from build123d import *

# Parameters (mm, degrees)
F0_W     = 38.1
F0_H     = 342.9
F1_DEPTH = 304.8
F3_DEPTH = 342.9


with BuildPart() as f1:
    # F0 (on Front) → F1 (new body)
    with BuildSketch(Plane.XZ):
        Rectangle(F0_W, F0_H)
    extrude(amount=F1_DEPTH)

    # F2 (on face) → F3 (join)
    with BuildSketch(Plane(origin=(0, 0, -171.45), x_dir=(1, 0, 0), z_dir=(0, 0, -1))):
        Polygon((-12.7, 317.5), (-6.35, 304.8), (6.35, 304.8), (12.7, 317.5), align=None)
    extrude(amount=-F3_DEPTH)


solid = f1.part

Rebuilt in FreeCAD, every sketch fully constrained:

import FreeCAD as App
import Part
import Sketcher
Q = App.Units.Quantity


def add_polygon(sketch, points):
    """Adds a closed chain of lines whose ends are joined by coincident constraints."""
    first, n = sketch.GeometryCount, len(points)
    for a, b in zip(points, points[1:] + points[:1]):
        sketch.addGeometry(Part.LineSegment(App.Vector(*a, 0), App.Vector(*b, 0)), False)
    for i in range(n):
        sketch.addConstraint(Sketcher.Constraint("Coincident", first + i, 2, first + (i + 1) % n, 1))

doc = App.newDocument("Part")
body = doc.addObject("PartDesign::Body", "Body")

sketch1 = body.newObject("Sketcher::SketchObject", "Sketch")
sketch1.AttachmentSupport = (doc.getObject("XZ_Plane"), [""])
sketch1.MapMode = "FlatFace"
add_polygon(sketch1, [(-19.05, 171.45), (-19.05, -171.45), (19.05, -171.45), (19.05, 171.45)])
sketch1.addConstraint([
    Sketcher.Constraint("Vertical", 0),
    Sketcher.Constraint("Horizontal", 1),
    Sketcher.Constraint("Vertical", 2),
    Sketcher.Constraint("Horizontal", 3),
    Sketcher.Constraint("Symmetric", 0, 2, 2, 2, -1, 1),
    Sketcher.Constraint("DistanceX", 1, 1, 1, 2, Q("1.5 in")),
    Sketcher.Constraint("DistanceY", 0, 2, 0, 1, Q("13.5 in")),
])
pad1 = body.newObject("PartDesign::Pad", "Pad")
pad1.Profile = sketch1
pad1.Length = Q("12 in")

sketch2 = body.newObject("Sketcher::SketchObject", "Sketch001")
sketch2.AttachmentSupport = (doc.getObject("XY_Plane"), [""])
sketch2.MapMode = "FlatFace"
sketch2.AttachmentOffset = App.Placement(App.Vector(0, 0, -6.75 * 25.4), App.Rotation())
add_polygon(sketch2, [(-12.7, -317.5), (-6.35, -304.8), (6.35, -304.8), (12.7, -317.5)])
sketch2.addConstraint([
    Sketcher.Constraint("Horizontal", 1),
    Sketcher.Constraint("Horizontal", 3),
    Sketcher.Constraint("Equal", 0, 2),
    Sketcher.Constraint("DistanceX", 3, 2, 3, 1, Q("1 in")),
    Sketcher.Constraint("DistanceX", 1, 1, 1, 2, Q("0.5 in")),
    Sketcher.Constraint("DistanceY", 0, 2, -1, 1, Q("12 in")),
    Sketcher.Constraint("DistanceX", -1, 1, 2, 2, Q("0.5 in")),
    Sketcher.Constraint("DistanceY", 2, 2, -1, 1, Q("12.5 in")),
])
pad2 = body.newObject("PartDesign::Pad", "Pad001")
pad2.Profile = sketch2
pad2.Length = Q("13.5 in")

doc.recompute()
